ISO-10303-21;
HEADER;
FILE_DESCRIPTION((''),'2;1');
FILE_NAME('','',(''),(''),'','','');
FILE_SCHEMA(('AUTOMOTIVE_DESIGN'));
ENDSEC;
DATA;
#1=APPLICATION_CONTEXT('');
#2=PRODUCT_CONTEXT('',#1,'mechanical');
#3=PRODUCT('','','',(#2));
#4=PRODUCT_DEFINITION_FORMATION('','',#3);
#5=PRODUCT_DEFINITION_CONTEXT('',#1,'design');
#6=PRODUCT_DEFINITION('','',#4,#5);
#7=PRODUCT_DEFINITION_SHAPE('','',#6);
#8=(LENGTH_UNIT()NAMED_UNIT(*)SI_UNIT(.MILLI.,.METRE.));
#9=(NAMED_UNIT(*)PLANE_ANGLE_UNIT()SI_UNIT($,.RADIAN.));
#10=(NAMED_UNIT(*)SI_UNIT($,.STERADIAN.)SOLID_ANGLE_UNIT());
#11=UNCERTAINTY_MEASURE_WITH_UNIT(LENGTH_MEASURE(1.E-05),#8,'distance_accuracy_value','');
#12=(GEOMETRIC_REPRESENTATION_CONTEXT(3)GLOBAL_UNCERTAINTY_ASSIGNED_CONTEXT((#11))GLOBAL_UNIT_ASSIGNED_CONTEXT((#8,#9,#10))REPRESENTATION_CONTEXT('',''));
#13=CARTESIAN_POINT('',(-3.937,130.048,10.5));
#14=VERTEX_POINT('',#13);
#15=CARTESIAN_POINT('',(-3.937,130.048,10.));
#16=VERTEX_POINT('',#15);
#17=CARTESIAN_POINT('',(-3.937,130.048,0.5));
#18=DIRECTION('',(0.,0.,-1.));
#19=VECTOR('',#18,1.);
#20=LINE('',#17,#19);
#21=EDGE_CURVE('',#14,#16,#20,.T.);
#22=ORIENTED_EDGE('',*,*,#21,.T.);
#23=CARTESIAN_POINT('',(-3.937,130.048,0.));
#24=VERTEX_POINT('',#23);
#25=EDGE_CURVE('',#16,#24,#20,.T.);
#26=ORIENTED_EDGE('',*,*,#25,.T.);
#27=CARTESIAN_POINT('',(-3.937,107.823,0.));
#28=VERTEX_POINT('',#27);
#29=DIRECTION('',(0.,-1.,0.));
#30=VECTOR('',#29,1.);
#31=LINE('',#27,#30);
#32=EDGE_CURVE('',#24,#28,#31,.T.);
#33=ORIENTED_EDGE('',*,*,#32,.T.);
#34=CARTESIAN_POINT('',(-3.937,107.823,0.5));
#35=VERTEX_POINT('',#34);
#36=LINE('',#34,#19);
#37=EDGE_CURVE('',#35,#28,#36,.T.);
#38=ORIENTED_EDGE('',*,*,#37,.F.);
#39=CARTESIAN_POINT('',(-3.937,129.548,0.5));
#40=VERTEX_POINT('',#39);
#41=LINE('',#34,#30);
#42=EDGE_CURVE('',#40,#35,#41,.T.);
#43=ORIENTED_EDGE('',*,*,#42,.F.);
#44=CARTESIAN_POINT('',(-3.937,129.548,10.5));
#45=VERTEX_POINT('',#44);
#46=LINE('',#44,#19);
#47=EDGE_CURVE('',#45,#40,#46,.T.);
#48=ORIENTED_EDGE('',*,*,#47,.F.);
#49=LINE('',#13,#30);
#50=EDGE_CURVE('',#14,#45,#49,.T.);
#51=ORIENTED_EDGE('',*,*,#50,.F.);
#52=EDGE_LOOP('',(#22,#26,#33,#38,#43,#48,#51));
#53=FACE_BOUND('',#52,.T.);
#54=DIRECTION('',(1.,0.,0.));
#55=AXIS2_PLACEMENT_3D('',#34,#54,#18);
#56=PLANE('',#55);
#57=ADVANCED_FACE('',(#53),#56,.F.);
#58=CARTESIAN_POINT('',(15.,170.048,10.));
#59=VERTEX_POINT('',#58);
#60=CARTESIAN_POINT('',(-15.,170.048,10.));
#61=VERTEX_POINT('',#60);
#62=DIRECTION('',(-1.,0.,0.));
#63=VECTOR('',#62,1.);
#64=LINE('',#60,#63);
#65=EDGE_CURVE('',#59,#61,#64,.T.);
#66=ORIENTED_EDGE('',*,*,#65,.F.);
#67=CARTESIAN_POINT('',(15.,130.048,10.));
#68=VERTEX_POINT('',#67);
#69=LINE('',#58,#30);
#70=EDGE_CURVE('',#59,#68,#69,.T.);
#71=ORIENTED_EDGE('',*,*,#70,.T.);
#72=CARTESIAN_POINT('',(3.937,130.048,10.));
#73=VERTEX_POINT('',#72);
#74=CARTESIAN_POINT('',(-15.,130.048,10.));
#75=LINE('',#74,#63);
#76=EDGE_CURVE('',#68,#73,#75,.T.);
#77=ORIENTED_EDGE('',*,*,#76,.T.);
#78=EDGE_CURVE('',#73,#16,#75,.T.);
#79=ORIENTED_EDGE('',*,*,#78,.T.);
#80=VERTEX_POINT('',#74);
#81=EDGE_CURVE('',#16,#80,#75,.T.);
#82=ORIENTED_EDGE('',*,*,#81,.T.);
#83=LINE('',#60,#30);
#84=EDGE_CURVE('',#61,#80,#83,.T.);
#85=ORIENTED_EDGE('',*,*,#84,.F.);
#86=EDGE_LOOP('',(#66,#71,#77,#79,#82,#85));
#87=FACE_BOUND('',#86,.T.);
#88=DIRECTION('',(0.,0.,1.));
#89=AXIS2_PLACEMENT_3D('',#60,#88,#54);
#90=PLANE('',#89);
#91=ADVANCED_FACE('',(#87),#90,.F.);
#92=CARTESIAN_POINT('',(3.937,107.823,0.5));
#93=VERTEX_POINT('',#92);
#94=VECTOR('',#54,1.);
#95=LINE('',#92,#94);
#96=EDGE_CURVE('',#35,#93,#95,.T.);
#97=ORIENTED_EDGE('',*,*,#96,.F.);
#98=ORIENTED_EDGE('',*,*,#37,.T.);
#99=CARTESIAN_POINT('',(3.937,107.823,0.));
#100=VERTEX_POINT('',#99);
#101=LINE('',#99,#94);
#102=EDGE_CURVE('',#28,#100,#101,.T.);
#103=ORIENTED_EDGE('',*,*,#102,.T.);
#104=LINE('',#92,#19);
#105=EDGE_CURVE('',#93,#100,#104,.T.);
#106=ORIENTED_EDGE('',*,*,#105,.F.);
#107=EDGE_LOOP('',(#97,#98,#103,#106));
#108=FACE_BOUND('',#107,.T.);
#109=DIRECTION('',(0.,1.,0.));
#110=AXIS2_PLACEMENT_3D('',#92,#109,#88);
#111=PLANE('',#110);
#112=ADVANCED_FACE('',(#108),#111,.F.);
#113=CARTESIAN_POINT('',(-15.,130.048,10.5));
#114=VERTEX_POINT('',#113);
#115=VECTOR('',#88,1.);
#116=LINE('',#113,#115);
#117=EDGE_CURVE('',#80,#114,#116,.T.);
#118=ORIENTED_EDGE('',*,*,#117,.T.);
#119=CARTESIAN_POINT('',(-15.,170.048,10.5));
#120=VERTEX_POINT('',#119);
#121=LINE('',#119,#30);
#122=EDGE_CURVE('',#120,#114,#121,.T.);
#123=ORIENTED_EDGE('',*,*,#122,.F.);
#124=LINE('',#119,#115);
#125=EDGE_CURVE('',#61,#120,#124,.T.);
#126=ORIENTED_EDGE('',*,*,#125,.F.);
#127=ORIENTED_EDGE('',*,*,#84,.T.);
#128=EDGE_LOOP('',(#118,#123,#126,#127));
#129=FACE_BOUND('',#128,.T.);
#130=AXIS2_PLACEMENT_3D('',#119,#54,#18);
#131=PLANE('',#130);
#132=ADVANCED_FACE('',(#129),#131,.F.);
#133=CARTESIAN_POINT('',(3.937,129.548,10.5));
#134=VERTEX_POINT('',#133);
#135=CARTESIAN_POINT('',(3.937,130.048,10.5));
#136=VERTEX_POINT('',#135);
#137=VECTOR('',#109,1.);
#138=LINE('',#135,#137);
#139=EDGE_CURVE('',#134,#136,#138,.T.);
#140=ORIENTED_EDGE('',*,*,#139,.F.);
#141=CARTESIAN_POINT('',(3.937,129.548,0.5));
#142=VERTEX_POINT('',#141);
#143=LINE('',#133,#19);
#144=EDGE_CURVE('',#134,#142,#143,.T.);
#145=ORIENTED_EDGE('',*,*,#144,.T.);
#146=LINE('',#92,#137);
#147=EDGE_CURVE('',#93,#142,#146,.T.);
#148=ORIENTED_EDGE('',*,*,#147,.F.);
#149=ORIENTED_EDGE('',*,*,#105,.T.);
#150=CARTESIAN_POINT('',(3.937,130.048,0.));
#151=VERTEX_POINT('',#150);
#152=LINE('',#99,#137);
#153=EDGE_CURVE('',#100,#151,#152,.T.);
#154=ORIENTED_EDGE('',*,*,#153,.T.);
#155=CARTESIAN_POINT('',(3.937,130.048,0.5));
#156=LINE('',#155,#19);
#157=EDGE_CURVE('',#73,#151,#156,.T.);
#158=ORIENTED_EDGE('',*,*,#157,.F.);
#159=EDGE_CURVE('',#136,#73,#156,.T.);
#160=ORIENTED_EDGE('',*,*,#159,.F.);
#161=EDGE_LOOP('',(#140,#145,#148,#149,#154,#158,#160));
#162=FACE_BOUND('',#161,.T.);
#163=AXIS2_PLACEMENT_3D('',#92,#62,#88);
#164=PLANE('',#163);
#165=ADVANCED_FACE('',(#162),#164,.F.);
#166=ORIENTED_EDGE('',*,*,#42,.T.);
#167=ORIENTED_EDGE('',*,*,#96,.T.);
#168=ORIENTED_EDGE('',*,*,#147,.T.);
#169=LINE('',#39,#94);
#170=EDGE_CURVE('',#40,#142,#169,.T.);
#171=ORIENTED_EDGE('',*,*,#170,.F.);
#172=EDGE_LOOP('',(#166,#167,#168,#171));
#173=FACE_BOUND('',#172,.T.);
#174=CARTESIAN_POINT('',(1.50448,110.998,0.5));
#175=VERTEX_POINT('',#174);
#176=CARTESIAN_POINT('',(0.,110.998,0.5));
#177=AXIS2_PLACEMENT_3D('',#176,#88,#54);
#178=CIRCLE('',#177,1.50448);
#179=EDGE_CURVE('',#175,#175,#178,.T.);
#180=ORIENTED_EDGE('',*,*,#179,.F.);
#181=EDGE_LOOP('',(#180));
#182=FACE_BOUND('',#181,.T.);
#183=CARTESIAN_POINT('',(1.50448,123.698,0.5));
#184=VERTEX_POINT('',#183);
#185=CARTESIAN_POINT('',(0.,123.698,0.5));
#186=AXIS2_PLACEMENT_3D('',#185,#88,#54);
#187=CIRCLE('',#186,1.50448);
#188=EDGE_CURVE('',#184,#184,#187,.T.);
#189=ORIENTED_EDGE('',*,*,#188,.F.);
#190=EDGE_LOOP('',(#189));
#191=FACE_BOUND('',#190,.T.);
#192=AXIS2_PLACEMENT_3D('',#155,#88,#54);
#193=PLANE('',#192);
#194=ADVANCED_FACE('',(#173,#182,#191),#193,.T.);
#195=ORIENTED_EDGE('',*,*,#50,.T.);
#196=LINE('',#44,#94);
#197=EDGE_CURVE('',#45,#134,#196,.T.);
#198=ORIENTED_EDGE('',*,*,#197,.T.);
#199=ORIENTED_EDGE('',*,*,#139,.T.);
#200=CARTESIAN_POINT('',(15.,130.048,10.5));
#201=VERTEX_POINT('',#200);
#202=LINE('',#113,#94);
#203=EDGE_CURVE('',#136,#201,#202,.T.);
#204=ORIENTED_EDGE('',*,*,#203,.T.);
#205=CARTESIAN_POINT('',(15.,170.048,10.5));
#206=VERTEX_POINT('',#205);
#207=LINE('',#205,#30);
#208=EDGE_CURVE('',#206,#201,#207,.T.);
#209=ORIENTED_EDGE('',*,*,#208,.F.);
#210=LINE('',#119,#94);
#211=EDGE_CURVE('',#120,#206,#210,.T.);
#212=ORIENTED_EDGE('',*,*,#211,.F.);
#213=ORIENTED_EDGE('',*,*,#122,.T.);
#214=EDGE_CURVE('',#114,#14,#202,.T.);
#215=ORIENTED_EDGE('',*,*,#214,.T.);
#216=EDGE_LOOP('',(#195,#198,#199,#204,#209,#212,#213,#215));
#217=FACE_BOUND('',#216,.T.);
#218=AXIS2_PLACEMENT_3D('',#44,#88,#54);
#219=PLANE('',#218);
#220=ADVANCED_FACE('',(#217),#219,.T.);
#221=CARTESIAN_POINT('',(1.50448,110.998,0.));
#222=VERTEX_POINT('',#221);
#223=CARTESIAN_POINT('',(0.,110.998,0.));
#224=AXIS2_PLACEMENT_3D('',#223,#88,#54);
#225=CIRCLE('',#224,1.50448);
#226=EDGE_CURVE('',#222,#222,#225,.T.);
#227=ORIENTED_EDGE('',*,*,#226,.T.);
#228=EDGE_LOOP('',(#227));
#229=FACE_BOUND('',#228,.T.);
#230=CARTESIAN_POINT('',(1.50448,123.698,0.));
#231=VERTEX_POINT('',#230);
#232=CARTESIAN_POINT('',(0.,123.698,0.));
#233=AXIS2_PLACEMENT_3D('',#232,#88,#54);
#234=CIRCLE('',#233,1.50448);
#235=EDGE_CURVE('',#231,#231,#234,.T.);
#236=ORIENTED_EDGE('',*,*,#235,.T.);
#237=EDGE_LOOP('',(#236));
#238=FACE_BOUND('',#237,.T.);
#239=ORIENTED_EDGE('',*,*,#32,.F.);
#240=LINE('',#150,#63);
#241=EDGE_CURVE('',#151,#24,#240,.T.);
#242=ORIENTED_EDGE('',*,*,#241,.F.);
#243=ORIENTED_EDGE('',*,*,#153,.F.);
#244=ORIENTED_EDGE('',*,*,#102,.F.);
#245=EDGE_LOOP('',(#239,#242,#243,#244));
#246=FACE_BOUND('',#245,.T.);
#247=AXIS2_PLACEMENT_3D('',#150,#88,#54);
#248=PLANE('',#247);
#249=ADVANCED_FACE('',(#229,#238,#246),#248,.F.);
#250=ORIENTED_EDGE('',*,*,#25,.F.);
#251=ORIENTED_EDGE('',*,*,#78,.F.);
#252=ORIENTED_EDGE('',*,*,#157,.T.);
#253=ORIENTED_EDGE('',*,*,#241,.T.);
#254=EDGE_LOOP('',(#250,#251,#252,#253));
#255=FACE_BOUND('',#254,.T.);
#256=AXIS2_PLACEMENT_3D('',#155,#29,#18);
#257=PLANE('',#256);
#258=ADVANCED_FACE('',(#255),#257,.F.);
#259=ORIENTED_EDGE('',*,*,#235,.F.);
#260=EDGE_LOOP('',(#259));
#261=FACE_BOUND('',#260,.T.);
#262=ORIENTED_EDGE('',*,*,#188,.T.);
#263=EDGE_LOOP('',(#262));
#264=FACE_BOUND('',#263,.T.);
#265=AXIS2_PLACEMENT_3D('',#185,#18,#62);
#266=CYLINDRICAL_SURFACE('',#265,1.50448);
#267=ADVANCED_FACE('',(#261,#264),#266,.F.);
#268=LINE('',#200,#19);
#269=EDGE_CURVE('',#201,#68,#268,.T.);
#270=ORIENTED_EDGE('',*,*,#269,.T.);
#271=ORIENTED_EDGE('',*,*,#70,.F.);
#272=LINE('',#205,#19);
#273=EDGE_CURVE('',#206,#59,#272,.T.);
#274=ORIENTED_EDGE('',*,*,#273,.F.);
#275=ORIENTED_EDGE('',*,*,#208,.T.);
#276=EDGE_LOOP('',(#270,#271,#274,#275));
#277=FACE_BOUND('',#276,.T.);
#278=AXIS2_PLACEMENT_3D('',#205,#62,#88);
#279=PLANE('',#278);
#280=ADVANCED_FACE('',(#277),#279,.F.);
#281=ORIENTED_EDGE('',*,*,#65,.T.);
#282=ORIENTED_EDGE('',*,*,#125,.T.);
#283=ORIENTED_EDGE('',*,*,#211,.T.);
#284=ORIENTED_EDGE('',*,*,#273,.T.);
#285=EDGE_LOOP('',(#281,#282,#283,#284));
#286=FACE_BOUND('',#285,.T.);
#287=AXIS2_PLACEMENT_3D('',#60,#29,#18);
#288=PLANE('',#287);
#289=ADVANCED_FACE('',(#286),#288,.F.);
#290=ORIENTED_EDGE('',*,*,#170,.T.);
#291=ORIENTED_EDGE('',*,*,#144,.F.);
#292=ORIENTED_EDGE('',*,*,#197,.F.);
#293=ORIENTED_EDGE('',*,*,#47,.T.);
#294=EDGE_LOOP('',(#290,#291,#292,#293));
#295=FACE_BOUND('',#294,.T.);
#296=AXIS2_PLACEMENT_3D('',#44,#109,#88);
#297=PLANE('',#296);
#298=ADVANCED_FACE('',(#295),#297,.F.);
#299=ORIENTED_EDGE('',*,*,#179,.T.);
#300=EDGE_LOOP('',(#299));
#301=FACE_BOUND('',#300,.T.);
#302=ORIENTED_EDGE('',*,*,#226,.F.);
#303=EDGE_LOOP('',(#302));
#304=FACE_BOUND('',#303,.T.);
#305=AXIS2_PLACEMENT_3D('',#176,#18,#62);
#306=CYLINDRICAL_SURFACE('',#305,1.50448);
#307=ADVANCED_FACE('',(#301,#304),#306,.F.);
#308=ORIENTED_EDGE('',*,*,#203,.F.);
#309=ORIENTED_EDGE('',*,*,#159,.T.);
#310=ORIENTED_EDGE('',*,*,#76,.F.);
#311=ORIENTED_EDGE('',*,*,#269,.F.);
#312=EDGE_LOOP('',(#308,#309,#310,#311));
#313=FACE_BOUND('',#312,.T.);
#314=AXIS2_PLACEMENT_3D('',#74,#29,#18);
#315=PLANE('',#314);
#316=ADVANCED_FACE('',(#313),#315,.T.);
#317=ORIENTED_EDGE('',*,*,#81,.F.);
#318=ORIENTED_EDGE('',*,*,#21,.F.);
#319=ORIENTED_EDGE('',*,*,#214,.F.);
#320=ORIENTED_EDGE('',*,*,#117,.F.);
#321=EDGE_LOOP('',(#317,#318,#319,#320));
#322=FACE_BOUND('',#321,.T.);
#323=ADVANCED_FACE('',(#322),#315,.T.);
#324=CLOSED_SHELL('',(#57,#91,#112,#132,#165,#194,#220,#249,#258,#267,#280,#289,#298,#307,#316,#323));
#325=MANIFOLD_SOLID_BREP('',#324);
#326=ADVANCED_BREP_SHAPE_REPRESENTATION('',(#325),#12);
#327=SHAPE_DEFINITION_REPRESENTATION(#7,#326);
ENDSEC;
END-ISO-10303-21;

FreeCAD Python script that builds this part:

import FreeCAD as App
import Part
import Sketcher

V = App.Vector
Q = App.Units.Quantity


def add_polygon(sketch, points):
    """Adds a closed chain of lines whose ends are joined by coincident constraints."""
    first, n = sketch.GeometryCount, len(points)
    for a, b in zip(points, points[1:] + points[:1]):
        sketch.addGeometry(Part.LineSegment(App.Vector(*a, 0), App.Vector(*b, 0)), False)
    for i in range(n):
        sketch.addConstraint(Sketcher.Constraint("Coincident", first + i, 2, first + (i + 1) % n, 1))

doc = App.newDocument("Part")
body = doc.addObject("PartDesign::Body", "Body")

sketch1 = body.newObject("Sketcher::SketchObject", "Sketch")
sketch1.AttachmentSupport = (doc.getObject("XY_Plane"), [""])
sketch1.MapMode = "FlatFace"
add_polygon(sketch1, [(-3.9, 130), (-3.9, 107.8), (3.9, 107.8), (3.9, 130)])
sketch1.addGeometry(Part.Circle(V(0, 111, 0), V(0, 0, 1), 1.5), False)
sketch1.addGeometry(Part.Circle(V(0, 123.7, 0), V(0, 0, 1), 1.5), False)
sketch1.addConstraint([
    Sketcher.Constraint("Vertical", 0),
    Sketcher.Constraint("Horizontal", 1),
    Sketcher.Constraint("Vertical", 2),
    Sketcher.Constraint("Horizontal", 3),
    Sketcher.Constraint("Equal", 4, 5),
    Sketcher.Constraint("PointOnObject", 4, 3, -2),
    Sketcher.Constraint("PointOnObject", 5, 3, -2),
    Sketcher.Constraint("DistanceY", 4, 3, 5, 3, Q("12.7 mm")),
    Sketcher.Constraint("Diameter", 4, Q("3.008961 mm")),
    Sketcher.Constraint("DistanceX", 1, 1, 1, 2, Q("7.874 mm")),
    Sketcher.Constraint("DistanceY", 0, 2, 0, 1, Q("22.225 mm")),
    Sketcher.Constraint("DistanceY", 5, 3, 2, 2, Q("6.35 mm")),
    Sketcher.Constraint("DistanceY", -1, 1, 4, 3, Q("110.998 mm")),
    Sketcher.Constraint("DistanceX", 0, 2, -1, 1, Q("3.937 mm")),
])
pad1 = body.newObject("PartDesign::Pad", "Pad")
pad1.Profile = sketch1
pad1.Length = 0.5

sketch2 = body.newObject("Sketcher::SketchObject", "Sketch001")
sketch2.AttachmentSupport = (doc.getObject("XY_Plane"), [""])
sketch2.MapMode = "FlatFace"
sketch2.AttachmentOffset = App.Placement(V(0, 0, 0.5), App.Rotation())
add_polygon(sketch2, [(-3.9, 130), (-3.9, 129.5), (3.9, 129.5), (3.9, 130)])
sketch2.addConstraint([
    Sketcher.Constraint("Vertical", 0),
    Sketcher.Constraint("Horizontal", 1),
    Sketcher.Constraint("Vertical", 2),
    Sketcher.Constraint("Horizontal", 3),
    Sketcher.Constraint("DistanceY", 0, 2, 0, 1, Q("0.5 mm")),
    Sketcher.Constraint("DistanceX", 1, 1, 1, 2, Q("7.874 mm")),
    Sketcher.Constraint("DistanceX", 0, 2, -1, 1, Q("3.937 mm")),
    Sketcher.Constraint("DistanceY", -1, 1, 0, 2, Q("129.548 mm")),
])
pad2 = body.newObject("PartDesign::Pad", "Pad001")
pad2.Profile = sketch2
pad2.Length = 10

sketch3 = body.newObject("Sketcher::SketchObject", "Sketch002")
sketch3.AttachmentSupport = (doc.getObject("XZ_Plane"), [""])
sketch3.MapMode = "FlatFace"
sketch3.AttachmentOffset = App.Placement(V(0, 0, -130.048), App.Rotation())
add_polygon(sketch3, [(-15, 10), (-15, 10.5), (15, 10.5), (15, 10)])
sketch3.addConstraint([
    Sketcher.Constraint("Vertical", 0),
    Sketcher.Constraint("Horizontal", 1),
    Sketcher.Constraint("Vertical", 2),
    Sketcher.Constraint("Horizontal", 3),
    Sketcher.Constraint("DistanceX", 1, 1, 1, 2, Q("30 mm")),
    Sketcher.Constraint("DistanceY", 0, 1, 0, 2, Q("0.5 mm")),
    Sketcher.Constraint("DistanceX", 0, 2, -1, 1, Q("15 mm")),
    Sketcher.Constraint("DistanceY", -1, 1, 2, 2, Q("10 mm")),
])
pad3 = body.newObject("PartDesign::Pad", "Pad002")
pad3.Profile = sketch3
pad3.Length = 40
pad3.Reversed = True

doc.recompute()
